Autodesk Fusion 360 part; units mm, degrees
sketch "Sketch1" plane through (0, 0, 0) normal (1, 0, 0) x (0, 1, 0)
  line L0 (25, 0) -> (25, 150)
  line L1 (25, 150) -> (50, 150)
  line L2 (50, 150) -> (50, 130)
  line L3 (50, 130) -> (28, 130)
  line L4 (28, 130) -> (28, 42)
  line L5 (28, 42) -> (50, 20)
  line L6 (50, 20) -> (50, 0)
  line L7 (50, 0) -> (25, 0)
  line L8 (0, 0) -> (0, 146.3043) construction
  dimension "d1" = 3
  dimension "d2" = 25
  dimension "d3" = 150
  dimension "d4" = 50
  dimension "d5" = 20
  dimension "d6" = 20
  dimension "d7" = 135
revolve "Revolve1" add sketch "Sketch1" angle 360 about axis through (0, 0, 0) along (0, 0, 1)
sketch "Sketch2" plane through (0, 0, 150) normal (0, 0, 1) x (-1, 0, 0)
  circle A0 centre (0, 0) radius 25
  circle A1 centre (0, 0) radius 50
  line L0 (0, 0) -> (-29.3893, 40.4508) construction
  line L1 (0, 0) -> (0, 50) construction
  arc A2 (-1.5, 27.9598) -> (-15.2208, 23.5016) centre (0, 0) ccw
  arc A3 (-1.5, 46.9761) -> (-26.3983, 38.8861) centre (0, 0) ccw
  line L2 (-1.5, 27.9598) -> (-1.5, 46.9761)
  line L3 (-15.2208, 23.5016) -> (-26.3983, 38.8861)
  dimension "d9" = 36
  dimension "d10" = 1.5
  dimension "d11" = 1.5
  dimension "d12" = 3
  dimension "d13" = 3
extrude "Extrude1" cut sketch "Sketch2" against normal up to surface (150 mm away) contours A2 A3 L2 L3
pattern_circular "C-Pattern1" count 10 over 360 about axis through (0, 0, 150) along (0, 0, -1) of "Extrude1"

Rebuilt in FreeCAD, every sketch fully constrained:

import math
import FreeCAD as App
import Part
import Sketcher
from FreeCAD import Vector
Q = App.Units.Quantity

doc = App.newDocument("Part")
body = doc.addObject("PartDesign::Body", "Body")

sketch1 = body.newObject("Sketcher::SketchObject", "Sketch")
sketch1.AttachmentSupport = (doc.getObject("YZ_Plane"), [""])
sketch1.MapMode = "FlatFace"
sketch1.addGeometry([
    Part.LineSegment(Vector(25, 150, 0), Vector(25, 0, 0)),
    Part.LineSegment(Vector(25, 0, 0), Vector(50, 0, 0)),
    Part.LineSegment(Vector(50, 0, 0), Vector(50, 20, 0)),
    Part.LineSegment(Vector(50, 20, 0), Vector(28, 42, 0)),
    Part.LineSegment(Vector(28, 42, 0), Vector(28, 130, 0)),
    Part.LineSegment(Vector(28, 130, 0), Vector(50, 130, 0)),
    Part.LineSegment(Vector(50, 130, 0), Vector(50, 150, 0)),
    Part.LineSegment(Vector(50, 150, 0), Vector(25, 150, 0)),
], False)
sketch1.addConstraint([
    Sketcher.Constraint("Coincident", 0, 2, 1, 1),
    Sketcher.Constraint("Coincident", 1, 2, 2, 1),
    Sketcher.Constraint("Coincident", 2, 2, 3, 1),
    Sketcher.Constraint("Coincident", 3, 2, 4, 1),
    Sketcher.Constraint("Coincident", 4, 2, 5, 1),
    Sketcher.Constraint("Coincident", 5, 2, 6, 1),
    Sketcher.Constraint("Coincident", 6, 2, 7, 1),
    Sketcher.Constraint("Coincident", 7, 2, 0, 1),
    Sketcher.Constraint("Vertical", 0),
    Sketcher.Constraint("Horizontal", 1),
    Sketcher.Constraint("Vertical", 2),
    Sketcher.Constraint("Vertical", 4),
    Sketcher.Constraint("Horizontal", 5),
    Sketcher.Constraint("Vertical", 6),
    Sketcher.Constraint("Horizontal", 7),
    Sketcher.Constraint("PointOnObject", 0, 2, -1),
    Sketcher.Constraint("Vertical", 2, 2, 5, 2),
    Sketcher.Constraint("Equal", 2, 6),
    Sketcher.Constraint("DistanceX", 1, 1, 1, 2, Q("25 mm")),
    Sketcher.Constraint("DistanceY", 0, 2, 0, 1, Q("150 mm")),
    Sketcher.Constraint("DistanceY", 2, 1, 2, 2, Q("20 mm")),
    Sketcher.Constraint("Angle", 3, Q("135 deg")),
    Sketcher.Constraint("DistanceX", -1, 1, 0, 2, Q("25 mm")),
    Sketcher.Constraint("DistanceX", 0, 2, 3, 2, Q("3 mm")),
])
revolution = body.newObject("PartDesign::Revolution", "Revolution")
revolution.Profile = sketch1
revolution.ReferenceAxis = (sketch1, ["V_Axis"])
revolution.Angle = 360

sketch2 = body.newObject("Sketcher::SketchObject", "Sketch001")
sketch2.AttachmentSupport = (doc.getObject("XY_Plane"), [""])
sketch2.MapMode = "FlatFace"
sketch2.AttachmentOffset = App.Placement(Vector(0, 0, 150), App.Rotation())
sketch2.addGeometry([
    Part.ArcOfCircle(Part.Circle(Vector(0, 0, 0), Vector(0, 0, 1), 28), math.radians(-87), math.radians(-57)),
    Part.LineSegment(Vector(2, -28, 0), Vector(2, -47, 0)),
    Part.ArcOfCircle(Part.Circle(Vector(0, 0, 0), Vector(0, 0, 1), 47), math.radians(-88), math.radians(-56)),
    Part.LineSegment(Vector(26, -39, 0), Vector(15, -24, 0)),
], False)
sketch2.addConstraint([
    Sketcher.Constraint("Coincident", 0, 1, 1, 1),
    Sketcher.Constraint("Coincident", 1, 2, 2, 1),
    Sketcher.Constraint("Coincident", 2, 2, 3, 1),
    Sketcher.Constraint("Coincident", 3, 2, 0, 2),
    Sketcher.Constraint("Vertical", 1),
    Sketcher.Constraint("Coincident", 0, 3, -1, 1),
    Sketcher.Constraint("Coincident", 2, 3, -1, 1),
    Sketcher.Constraint("Radius", 0, Q("28 mm")),
    Sketcher.Constraint("Radius", 2, Q("47 mm")),
    Sketcher.Constraint("DistanceX", -1, 1, 0, 1, Q("1.5 mm")),
    Sketcher.Constraint("Angle", 3, Q("126 deg")),
    Sketcher.Constraint("DistanceY", 1, 2, 2, 2, Q("8.09 mm")),
])
pocket1 = body.newObject("PartDesign::Pocket", "Pocket")
pocket1.Profile = sketch2
pocket1.Length = 150
doc.recompute()

polarpattern = body.newObject("PartDesign::PolarPattern", "PolarPattern")
polarpattern.Originals = [pocket1]
polarpattern.Axis = (doc.getObject("Z_Axis"), [""])
polarpattern.Angle = 360
polarpattern.Occurrences = 10
body.Tip = polarpattern

doc.recompute()
